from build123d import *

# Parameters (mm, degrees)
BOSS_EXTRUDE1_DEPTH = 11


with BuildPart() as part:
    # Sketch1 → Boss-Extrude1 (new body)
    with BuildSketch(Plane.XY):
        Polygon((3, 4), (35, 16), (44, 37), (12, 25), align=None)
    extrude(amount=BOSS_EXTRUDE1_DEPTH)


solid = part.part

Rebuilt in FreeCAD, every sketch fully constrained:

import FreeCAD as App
import Part
import Sketcher
Q = App.Units.Quantity


def add_polygon(sketch, points):
    """Adds a closed chain of lines whose ends are joined by coincident constraints."""
    first, n = sketch.GeometryCount, len(points)
    for a, b in zip(points, points[1:] + points[:1]):
        sketch.addGeometry(Part.LineSegment(App.Vector(*a, 0), App.Vector(*b, 0)), False)
    for i in range(n):
        sketch.addConstraint(Sketcher.Constraint("Coincident", first + i, 2, first + (i + 1) % n, 1))

doc = App.newDocument("Part")
body = doc.addObject("PartDesign::Body", "Body")

sketch1 = doc.addObject("Sketcher::SketchObject", "Sketch")
body.addObject(sketch1)
sketch1.AttachmentSupport = (doc.XY_Plane, [""])
sketch1.MapMode = "FlatFace"
add_polygon(sketch1, [(3, 4), (35, 16), (44, 37), (12, 25)])
sketch1.addConstraint([
    Sketcher.Constraint("Parallel", 0, 2),
    Sketcher.Constraint("Parallel", 1, 3),
    Sketcher.Constraint("DistanceX", -1, 1, 0, 2, Q("35 mm")),
    Sketcher.Constraint("DistanceY", -1, 1, 0, 2, Q("16 mm")),
    Sketcher.Constraint("DistanceX", -1, 1, 1, 2, Q("44 mm")),
    Sketcher.Constraint("DistanceY", -1, 1, 1, 2, Q("37 mm")),
    Sketcher.Constraint("DistanceX", -1, 1, 2, 2, Q("12 mm")),
    Sketcher.Constraint("DistanceY", -1, 1, 2, 2, Q("25 mm")),
])
pad1 = doc.addObject("PartDesign::Pad", "Pad")
body.addObject(pad1)
pad1.Profile = sketch1
pad1.Length = 11

doc.recompute()
